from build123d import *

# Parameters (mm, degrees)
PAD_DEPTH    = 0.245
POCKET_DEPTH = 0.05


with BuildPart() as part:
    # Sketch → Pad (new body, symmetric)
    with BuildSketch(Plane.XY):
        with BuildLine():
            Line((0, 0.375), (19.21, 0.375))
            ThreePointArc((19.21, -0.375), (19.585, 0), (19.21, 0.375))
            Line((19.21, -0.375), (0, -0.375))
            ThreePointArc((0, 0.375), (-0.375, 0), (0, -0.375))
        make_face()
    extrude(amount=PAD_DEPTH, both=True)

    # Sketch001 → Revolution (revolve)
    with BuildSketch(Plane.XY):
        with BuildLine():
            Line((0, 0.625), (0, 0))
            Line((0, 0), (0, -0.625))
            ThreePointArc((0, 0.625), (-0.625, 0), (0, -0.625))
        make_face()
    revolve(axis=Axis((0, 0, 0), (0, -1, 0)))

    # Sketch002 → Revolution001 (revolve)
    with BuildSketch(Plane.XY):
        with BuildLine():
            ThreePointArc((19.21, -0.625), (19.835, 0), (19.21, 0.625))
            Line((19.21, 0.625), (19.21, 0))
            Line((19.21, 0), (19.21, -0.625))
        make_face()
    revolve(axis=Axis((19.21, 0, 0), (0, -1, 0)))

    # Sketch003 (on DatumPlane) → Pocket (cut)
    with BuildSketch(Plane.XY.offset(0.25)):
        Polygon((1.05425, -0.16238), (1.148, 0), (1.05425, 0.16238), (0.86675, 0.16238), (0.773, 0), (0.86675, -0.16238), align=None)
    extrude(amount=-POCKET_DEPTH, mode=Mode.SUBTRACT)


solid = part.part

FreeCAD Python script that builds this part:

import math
import FreeCAD as App
import Part
import Sketcher
from FreeCAD import Vector


def add_polygon(sketch, points):
    """Adds a closed chain of lines whose ends are joined by coincident constraints."""
    first, n = sketch.GeometryCount, len(points)
    for a, b in zip(points, points[1:] + points[:1]):
        sketch.addGeometry(Part.LineSegment(App.Vector(*a, 0), App.Vector(*b, 0)), False)
    for i in range(n):
        sketch.addConstraint(Sketcher.Constraint("Coincident", first + i, 2, first + (i + 1) % n, 1))

doc = App.newDocument("Part")
body = doc.addObject("PartDesign::Body", "Body")

# Sketch on XY plane
sketch1 = body.newObject("Sketcher::SketchObject", "Sketch")
sketch1.AttachmentSupport = (doc.getObject("XY_Plane"), [""])
sketch1.MapMode = "FlatFace"
sketch1.addGeometry([
    Part.LineSegment(Vector(19.21, 0.38, 0), Vector(0, 0.38, 0)),
    Part.ArcOfCircle(Part.Circle(Vector(0, 0, 0), Vector(0, 0, 1), 0.38), math.radians(90), math.radians(270)),
    Part.LineSegment(Vector(0, -0.38, 0), Vector(19.21, -0.38, 0)),
    Part.ArcOfCircle(Part.Circle(Vector(19.21, 0, 0), Vector(0, 0, 1), 0.38), math.radians(-90), math.radians(90)),
], False)
sketch1.addConstraint([
    Sketcher.Constraint("Tangent", 0, 2, 1, 1),
    Sketcher.Constraint("Tangent", 1, 2, 2, 1),
    Sketcher.Constraint("Tangent", 2, 2, 3, 1),
    Sketcher.Constraint("Tangent", 3, 2, 0, 1),
    Sketcher.Constraint("Horizontal", 0),
    Sketcher.Constraint("Horizontal", 2),
    Sketcher.Constraint("Coincident", 1, 3, -1, 1),
    Sketcher.Constraint("Radius", 1, 0.375),
    Sketcher.Constraint("DistanceX", 0, 2, 0, 1, 19.21),
])
pad1 = body.newObject("PartDesign::Pad", "Pad")
pad1.Profile = sketch1
pad1.Length = 0.49
pad1.Midplane = True

# Sketch on XY plane
sketch2 = body.newObject("Sketcher::SketchObject", "Sketch001")
sketch2.AttachmentSupport = (doc.getObject("XY_Plane"), [""])
sketch2.MapMode = "FlatFace"
sketch2.addGeometry([
    Part.LineSegment(Vector(0, -0.6, 0), Vector(0, 0.6, 0)),
    Part.ArcOfCircle(Part.Circle(Vector(0, 0, 0), Vector(0, 0, 1), 0.6), math.radians(90), math.radians(270)),
], False)
sketch2.addConstraint([
    Sketcher.Constraint("Coincident", 0, 1, 1, 2),
    Sketcher.Constraint("Coincident", 1, 1, 0, 2),
    Sketcher.Constraint("Vertical", 0),
    Sketcher.Constraint("Coincident", 1, 3, -1, 1),
    Sketcher.Constraint("PointOnObject", 0, 1, -2),
    Sketcher.Constraint("Radius", 1, 0.625),
])
revolution = body.newObject("PartDesign::Revolution", "Revolution")
revolution.Profile = sketch2
revolution.ReferenceAxis = (sketch2, ["V_Axis"])
revolution.Angle = 360

# Sketch on XY plane
sketch3 = body.newObject("Sketcher::SketchObject", "Sketch002")
sketch3.AttachmentSupport = (doc.getObject("XY_Plane"), [""])
sketch3.MapMode = "FlatFace"
sketch3.addGeometry([
    Part.ArcOfCircle(Part.Circle(Vector(19.2, 0, 0), Vector(0, 0, 1), 0.6), math.radians(-90), math.radians(90)),
    Part.LineSegment(Vector(19.2, 0.6, 0), Vector(19.2, -0.6, 0)),
], False)
sketch3.addGeometry(Part.LineSegment(Vector(19.2, 0.6, 0), Vector(19.2, -0.6, 0)), True)  # axis
sketch3.addConstraint([
    Sketcher.Constraint("Coincident", 0, 1, 1, 2),
    Sketcher.Constraint("Coincident", 1, 1, 0, 2),
    Sketcher.Constraint("Vertical", 1),
    Sketcher.Constraint("Vertical", 2),
    Sketcher.Constraint("Coincident", 2, 1, 1, 1),
    Sketcher.Constraint("PointOnObject", 0, 3, -1),
    Sketcher.Constraint("Equal", 1, 2),
    Sketcher.Constraint("Radius", 0, 0.625),
    Sketcher.Constraint("DistanceX", -1, 1, 0, 3, 19.21),
    Sketcher.Constraint("DistanceX", -1, 1, 0, 1, 19.21),
])
revolution2 = body.newObject("PartDesign::Revolution", "Revolution001")
revolution2.Profile = sketch3
revolution2.ReferenceAxis = (sketch3, ["Axis0"])
revolution2.Angle = 360

# Sketch on XY plane
sketch4 = body.newObject("Sketcher::SketchObject", "Sketch003")
sketch4.AttachmentSupport = (doc.getObject("XY_Plane"), [""])
sketch4.MapMode = "FlatFace"
sketch4.AttachmentOffset = App.Placement(Vector(0, 0, 0.25), App.Rotation())
add_polygon(sketch4, [(1.05, -0.16), (1.15, 0), (1.05, 0.16), (0.87, 0.16), (0.77, 0), (0.87, -0.16)])  # lines 0-5
sketch4.addConstraint([
    Sketcher.Constraint("Horizontal", 2),
    Sketcher.Constraint("Horizontal", 5),
    Sketcher.Constraint("Symmetric", 2, 2, 4, 2, -1),
    Sketcher.Constraint("PointOnObject", 0, 2, -1),
    Sketcher.Constraint("PointOnObject", 3, 2, -1),
    Sketcher.Constraint("Parallel", 0, 3),
    Sketcher.Constraint("Parallel", 1, 4),
    Sketcher.Constraint("DistanceX", 2, 2, 2, 1, 0.1875),
    Sketcher.Constraint("DistanceX", -1, 1, 0, 2, 1.148),
    Sketcher.Constraint("DistanceX", -1, 1, 3, 2, 0.773),
    Sketcher.Constraint("Distance", 0, 0.1875),
])
pocket1 = body.newObject("PartDesign::Pocket", "Pocket")
pocket1.Profile = sketch4
pocket1.Length = 0.05

doc.recompute()
